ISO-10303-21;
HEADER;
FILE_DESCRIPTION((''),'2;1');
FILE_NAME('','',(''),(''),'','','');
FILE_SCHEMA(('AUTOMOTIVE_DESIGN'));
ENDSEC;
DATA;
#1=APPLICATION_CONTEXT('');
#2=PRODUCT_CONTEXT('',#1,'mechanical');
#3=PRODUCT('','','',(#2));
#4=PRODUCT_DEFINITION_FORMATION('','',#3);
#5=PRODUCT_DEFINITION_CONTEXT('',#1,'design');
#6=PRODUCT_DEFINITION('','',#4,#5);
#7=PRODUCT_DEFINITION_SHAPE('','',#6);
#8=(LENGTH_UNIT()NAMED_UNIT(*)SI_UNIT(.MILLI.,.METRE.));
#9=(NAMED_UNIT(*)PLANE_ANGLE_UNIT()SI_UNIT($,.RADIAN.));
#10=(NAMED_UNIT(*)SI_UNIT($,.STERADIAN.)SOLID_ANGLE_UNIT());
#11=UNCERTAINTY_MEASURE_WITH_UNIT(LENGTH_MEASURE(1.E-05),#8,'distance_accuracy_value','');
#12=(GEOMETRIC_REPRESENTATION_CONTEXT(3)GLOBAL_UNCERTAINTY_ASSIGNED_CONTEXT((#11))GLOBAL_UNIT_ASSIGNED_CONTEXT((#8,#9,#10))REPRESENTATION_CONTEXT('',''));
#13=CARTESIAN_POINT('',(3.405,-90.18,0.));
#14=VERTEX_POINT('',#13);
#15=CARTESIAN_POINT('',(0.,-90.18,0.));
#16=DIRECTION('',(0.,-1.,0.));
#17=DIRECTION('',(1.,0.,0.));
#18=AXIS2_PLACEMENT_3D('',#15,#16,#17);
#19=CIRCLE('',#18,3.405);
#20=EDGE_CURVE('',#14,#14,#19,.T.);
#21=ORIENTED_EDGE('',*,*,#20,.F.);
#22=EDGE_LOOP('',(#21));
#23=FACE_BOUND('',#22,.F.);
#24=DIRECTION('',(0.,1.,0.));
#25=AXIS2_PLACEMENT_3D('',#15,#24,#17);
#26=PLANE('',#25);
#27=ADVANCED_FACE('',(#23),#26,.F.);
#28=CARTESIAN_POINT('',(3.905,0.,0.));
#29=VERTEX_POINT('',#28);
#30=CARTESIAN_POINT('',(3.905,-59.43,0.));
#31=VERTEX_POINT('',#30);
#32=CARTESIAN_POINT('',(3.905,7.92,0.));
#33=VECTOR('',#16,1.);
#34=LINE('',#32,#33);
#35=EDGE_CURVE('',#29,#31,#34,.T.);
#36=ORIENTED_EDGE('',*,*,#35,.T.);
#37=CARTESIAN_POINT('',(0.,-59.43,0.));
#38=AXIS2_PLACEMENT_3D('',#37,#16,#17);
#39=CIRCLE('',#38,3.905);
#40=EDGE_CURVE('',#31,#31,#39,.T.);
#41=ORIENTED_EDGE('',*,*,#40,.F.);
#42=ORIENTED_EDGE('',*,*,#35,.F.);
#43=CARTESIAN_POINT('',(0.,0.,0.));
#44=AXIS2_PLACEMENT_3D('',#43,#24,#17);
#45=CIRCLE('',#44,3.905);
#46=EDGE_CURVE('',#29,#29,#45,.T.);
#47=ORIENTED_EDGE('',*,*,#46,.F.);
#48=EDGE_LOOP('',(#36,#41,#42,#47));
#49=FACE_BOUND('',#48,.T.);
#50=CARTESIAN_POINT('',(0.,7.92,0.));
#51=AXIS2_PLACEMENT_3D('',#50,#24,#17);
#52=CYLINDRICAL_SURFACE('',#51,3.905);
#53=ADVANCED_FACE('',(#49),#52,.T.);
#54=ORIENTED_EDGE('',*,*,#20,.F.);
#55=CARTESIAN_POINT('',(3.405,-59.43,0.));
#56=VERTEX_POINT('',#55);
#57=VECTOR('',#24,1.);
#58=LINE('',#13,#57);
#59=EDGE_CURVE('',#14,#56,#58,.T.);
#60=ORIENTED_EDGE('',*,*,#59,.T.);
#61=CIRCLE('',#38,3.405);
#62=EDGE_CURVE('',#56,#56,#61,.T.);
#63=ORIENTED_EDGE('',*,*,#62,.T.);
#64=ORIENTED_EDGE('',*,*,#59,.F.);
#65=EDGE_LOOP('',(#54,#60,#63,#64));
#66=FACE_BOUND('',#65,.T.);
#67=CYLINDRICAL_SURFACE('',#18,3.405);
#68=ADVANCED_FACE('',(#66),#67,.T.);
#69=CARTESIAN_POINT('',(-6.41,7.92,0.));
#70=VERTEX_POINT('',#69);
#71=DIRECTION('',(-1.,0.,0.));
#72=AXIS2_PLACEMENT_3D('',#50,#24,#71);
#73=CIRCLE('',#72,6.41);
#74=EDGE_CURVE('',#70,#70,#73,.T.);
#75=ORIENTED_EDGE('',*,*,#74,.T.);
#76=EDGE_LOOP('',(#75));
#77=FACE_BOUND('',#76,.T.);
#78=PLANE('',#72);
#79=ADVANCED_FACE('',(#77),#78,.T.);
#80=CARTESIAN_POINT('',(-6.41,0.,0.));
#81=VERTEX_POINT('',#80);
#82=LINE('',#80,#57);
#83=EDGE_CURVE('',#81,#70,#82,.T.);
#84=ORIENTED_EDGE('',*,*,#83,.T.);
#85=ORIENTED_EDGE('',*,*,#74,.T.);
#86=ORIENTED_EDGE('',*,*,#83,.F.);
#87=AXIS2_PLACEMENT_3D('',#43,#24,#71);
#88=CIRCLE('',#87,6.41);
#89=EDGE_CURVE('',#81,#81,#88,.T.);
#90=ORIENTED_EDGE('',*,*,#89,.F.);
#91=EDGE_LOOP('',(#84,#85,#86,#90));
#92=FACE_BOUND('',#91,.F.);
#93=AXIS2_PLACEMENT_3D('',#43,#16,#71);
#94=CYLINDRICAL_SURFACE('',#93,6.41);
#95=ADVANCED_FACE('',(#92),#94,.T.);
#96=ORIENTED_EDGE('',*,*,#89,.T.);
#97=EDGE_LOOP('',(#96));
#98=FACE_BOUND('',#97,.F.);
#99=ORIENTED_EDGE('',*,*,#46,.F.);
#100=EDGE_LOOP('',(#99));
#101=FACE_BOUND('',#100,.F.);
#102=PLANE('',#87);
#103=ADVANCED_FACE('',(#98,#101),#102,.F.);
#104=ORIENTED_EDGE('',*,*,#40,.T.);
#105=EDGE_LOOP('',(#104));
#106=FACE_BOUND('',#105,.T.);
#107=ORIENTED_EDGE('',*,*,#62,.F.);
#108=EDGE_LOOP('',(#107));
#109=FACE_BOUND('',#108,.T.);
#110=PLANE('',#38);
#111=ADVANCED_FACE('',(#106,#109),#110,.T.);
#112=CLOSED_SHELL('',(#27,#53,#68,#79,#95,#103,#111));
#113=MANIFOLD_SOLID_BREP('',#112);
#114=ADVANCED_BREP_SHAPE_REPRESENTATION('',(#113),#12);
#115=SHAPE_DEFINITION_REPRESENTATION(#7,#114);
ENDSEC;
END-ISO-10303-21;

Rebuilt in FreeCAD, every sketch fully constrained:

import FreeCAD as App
import Part
import Sketcher

V = App.Vector
Q = App.Units.Quantity

doc = App.newDocument("Part")
body = doc.addObject("PartDesign::Body", "Body")

# Sketch on XZ plane
sketch1 = doc.addObject("Sketcher::SketchObject", "Sketch")
body.addObject(sketch1)
sketch1.AttachmentSupport = (doc.XZ_Plane, [""])
sketch1.MapMode = "FlatFace"
sketch1.addGeometry(Part.Circle(V(0, 0, 0), V(0, 0, 1), 6.41), False)
sketch1.addConstraint(Sketcher.Constraint("Coincident", 0, 3, -1, 1))
sketch1.addConstraint(Sketcher.Constraint("Diameter", 0, Q("12.82 mm")))
pad1 = doc.addObject("PartDesign::Pad", "Pad")
body.addObject(pad1)
pad1.Profile = sketch1
pad1.Length = 7.92
pad1.Reversed = True

# Sketch on XZ plane
sketch2 = doc.addObject("Sketcher::SketchObject", "Sketch001")
body.addObject(sketch2)
sketch2.AttachmentSupport = (doc.XZ_Plane, [""])
sketch2.MapMode = "FlatFace"
sketch2.AttachmentOffset = App.Placement(V(0, 0, -7.92), App.Rotation())
sketch2.addGeometry(Part.Circle(V(0, 0, 0), V(0, 0, 1), 3.905), False)
sketch2.addConstraint(Sketcher.Constraint("Coincident", 0, 3, -1, 1))
sketch2.addConstraint(Sketcher.Constraint("Diameter", 0, Q("7.81 mm")))
pad2 = doc.addObject("PartDesign::Pad", "Pad001")
body.addObject(pad2)
pad2.Profile = sketch2
pad2.Length = 98.1

# Sketch on XZ plane
sketch3 = doc.addObject("Sketcher::SketchObject", "Sketch002")
body.addObject(sketch3)
sketch3.AttachmentSupport = (doc.XZ_Plane, [""])
sketch3.MapMode = "FlatFace"
sketch3.AttachmentOffset = App.Placement(V(0, 0, 90.18), App.Rotation())
sketch3.addGeometry(Part.Circle(V(0, 0, 0), V(0, 0, 1), 3.905), False)
sketch3.addGeometry(Part.Circle(V(0, 0, 0), V(0, 0, 1), 3.405), False)
sketch3.addConstraint(Sketcher.Constraint("Coincident", 0, 3, -1, 1))
sketch3.addConstraint(Sketcher.Constraint("Coincident", 1, 3, -1, 1))
sketch3.addConstraint(Sketcher.Constraint("Diameter", 0, Q("7.81 mm")))
sketch3.addConstraint(Sketcher.Constraint("Diameter", 1, Q("6.81 mm")))
pocket1 = doc.addObject("PartDesign::Pocket", "Pocket")
body.addObject(pocket1)
pocket1.Profile = sketch3
pocket1.Length = 30.75

doc.recompute()
